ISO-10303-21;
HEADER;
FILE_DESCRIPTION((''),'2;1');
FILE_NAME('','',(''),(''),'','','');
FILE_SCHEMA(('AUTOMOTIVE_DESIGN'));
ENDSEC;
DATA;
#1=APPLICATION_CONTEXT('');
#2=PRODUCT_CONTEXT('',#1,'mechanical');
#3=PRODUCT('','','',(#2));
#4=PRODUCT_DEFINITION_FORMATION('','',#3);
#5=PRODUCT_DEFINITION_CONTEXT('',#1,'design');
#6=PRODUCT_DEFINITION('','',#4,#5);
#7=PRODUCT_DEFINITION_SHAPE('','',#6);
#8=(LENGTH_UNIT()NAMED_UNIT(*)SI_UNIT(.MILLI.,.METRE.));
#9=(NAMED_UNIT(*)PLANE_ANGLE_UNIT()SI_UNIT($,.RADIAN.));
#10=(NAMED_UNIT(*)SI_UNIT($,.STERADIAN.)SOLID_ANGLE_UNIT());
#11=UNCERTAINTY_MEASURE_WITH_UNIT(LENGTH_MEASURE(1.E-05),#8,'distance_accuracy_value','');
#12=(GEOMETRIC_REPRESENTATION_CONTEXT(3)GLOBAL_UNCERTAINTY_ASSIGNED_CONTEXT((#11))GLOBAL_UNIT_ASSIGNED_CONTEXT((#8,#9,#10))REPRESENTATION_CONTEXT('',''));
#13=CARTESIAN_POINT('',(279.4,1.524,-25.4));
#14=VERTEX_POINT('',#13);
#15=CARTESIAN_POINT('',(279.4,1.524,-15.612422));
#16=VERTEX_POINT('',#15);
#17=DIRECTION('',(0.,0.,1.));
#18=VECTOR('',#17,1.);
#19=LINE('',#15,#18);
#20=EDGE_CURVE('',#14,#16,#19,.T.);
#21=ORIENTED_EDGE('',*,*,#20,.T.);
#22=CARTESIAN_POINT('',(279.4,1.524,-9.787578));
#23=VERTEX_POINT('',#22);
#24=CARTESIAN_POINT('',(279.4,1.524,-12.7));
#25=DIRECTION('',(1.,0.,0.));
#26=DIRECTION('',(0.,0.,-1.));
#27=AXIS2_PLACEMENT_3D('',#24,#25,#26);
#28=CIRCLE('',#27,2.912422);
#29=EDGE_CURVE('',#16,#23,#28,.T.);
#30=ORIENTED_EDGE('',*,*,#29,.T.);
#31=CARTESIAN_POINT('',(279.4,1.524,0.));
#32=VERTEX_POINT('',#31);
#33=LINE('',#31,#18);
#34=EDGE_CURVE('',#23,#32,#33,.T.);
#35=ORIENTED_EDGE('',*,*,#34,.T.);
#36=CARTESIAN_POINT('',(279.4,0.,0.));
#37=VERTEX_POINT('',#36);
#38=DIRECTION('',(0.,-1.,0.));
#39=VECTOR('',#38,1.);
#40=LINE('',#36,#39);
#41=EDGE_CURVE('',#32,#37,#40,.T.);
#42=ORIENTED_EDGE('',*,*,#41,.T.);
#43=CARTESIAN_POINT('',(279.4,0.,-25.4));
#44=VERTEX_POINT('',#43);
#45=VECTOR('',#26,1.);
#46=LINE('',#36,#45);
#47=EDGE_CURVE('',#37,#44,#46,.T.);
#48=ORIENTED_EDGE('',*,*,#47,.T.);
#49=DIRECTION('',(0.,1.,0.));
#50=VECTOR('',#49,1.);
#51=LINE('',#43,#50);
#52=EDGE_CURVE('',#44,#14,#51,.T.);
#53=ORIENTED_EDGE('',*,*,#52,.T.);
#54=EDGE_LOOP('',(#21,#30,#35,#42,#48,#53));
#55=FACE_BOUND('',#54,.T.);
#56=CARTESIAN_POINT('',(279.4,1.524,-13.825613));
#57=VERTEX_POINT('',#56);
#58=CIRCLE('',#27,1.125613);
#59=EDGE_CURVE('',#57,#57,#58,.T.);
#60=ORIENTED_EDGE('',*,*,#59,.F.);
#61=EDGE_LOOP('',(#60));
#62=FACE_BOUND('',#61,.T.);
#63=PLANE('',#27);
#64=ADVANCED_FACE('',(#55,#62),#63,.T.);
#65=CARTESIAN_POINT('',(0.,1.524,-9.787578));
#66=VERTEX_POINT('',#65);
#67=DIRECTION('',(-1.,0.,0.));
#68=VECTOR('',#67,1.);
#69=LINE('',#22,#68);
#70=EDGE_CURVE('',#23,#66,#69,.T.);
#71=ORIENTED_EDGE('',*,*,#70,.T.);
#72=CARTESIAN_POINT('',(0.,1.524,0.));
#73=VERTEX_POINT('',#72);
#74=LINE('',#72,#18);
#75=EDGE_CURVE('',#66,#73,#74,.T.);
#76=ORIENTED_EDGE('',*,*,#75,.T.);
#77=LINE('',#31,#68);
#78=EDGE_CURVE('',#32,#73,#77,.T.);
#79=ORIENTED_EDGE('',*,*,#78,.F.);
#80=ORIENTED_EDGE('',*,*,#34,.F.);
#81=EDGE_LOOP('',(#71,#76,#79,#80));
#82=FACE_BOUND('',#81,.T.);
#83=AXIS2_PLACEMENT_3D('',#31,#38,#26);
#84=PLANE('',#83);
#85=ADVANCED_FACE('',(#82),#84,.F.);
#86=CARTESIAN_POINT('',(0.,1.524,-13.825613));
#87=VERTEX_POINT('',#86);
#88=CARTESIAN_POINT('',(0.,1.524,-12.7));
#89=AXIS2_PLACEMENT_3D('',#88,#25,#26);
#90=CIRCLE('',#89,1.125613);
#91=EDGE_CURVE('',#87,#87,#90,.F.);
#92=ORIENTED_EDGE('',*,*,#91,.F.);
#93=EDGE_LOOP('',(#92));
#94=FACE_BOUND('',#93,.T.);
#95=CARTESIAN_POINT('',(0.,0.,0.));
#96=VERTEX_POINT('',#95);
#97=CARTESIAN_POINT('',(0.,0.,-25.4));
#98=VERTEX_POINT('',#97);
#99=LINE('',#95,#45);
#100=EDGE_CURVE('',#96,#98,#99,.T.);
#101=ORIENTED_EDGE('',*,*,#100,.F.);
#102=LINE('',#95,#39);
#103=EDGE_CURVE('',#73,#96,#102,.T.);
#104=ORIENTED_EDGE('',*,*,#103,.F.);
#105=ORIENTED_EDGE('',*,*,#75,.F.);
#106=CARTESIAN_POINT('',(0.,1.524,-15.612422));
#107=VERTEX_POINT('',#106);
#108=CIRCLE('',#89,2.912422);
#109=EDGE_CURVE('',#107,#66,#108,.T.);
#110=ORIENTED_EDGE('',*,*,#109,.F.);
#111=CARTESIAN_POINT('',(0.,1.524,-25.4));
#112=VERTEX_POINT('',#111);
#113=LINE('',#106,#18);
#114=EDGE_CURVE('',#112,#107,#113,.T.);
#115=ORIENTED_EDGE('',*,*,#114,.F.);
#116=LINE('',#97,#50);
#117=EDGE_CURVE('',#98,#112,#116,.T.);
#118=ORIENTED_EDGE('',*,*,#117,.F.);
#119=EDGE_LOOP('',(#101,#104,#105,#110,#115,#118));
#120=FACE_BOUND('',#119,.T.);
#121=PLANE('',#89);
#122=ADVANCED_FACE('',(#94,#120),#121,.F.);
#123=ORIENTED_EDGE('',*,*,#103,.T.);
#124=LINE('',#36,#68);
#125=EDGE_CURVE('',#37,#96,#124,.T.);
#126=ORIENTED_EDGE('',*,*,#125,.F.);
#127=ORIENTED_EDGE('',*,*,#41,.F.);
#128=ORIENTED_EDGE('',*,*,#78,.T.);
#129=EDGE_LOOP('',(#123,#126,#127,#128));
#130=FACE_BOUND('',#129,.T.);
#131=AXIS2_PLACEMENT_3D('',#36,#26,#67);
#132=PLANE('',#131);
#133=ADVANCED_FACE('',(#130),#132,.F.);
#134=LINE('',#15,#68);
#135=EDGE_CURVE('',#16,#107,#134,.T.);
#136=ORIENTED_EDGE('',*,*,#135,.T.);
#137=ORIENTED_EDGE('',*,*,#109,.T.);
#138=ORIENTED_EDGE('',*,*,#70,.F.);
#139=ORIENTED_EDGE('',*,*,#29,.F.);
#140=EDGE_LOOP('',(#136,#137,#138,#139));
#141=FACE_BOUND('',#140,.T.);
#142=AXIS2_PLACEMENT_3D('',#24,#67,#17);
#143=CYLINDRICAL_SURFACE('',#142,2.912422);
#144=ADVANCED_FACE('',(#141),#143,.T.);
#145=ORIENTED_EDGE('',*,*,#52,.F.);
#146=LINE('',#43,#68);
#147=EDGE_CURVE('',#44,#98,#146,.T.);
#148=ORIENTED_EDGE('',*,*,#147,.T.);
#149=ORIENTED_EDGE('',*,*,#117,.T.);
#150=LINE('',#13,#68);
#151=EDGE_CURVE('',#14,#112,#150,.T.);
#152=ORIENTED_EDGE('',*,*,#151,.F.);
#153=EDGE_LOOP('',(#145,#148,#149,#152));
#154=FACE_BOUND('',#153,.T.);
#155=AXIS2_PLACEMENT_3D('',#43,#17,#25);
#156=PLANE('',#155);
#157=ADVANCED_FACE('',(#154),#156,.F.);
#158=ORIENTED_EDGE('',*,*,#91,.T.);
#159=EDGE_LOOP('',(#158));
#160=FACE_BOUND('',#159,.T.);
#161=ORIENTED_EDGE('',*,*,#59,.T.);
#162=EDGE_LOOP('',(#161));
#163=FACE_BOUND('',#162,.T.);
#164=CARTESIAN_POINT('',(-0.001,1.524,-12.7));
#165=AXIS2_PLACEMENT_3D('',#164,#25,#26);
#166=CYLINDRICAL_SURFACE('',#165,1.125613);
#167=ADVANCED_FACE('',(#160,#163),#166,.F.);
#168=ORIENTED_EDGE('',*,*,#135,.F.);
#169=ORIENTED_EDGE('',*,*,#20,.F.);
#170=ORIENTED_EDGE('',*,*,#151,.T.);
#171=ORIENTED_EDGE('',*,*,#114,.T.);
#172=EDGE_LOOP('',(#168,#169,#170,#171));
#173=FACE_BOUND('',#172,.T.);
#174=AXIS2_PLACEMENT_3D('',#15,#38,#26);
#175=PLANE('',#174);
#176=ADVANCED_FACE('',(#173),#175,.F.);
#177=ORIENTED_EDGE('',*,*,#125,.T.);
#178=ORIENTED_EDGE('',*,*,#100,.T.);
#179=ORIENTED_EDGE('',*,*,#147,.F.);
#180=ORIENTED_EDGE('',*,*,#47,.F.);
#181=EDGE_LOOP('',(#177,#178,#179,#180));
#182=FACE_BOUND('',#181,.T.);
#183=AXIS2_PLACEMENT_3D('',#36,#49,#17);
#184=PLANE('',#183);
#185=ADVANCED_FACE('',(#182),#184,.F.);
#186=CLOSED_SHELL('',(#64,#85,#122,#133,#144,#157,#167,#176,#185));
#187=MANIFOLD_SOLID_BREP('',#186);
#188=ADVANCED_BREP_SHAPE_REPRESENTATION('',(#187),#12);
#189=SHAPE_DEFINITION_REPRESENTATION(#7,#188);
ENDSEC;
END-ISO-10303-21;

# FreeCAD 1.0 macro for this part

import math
import FreeCAD as App
import Part
import Sketcher
from FreeCAD import Vector
Q = App.Units.Quantity

doc = App.newDocument("Part")
params = doc.addObject("Spreadsheet::Sheet", "Params")
for row, (alias, value) in enumerate([
    ("sketch1_height", "1 in"),
    ("sketch1_width", "0.06 in"),
    ("pad1_length", "11 in"),
], start=1):
    params.set(f"A{row}", alias)
    params.set(f"B{row}", "=" + value)
    params.setAlias(f"B{row}", alias)

body = doc.addObject("PartDesign::Body", "Body")

# Sketch on YZ plane
sketch1 = body.newObject("Sketcher::SketchObject", "Sketch")
sketch1.AttachmentSupport = (doc.getObject("YZ_Plane"), [""])
sketch1.MapMode = "FlatFace"
sketch1.addGeometry(Part.LineSegment(Vector(1.5, -25.4, 0), Vector(1.5, -15.6, 0)), False)
sketch1.addGeometry(Part.ArcOfCircle(Part.Circle(Vector(1.5, -12.7, 0), Vector(0, 0, 1), 2.9), math.radians(-90), math.radians(90)), False)
sketch1.addGeometry(Part.LineSegment(Vector(1.5, -9.8, 0), Vector(1.5, 0, 0)), False)
sketch1.addGeometry(Part.LineSegment(Vector(1.5, 0, 0), Vector(0, 0, 0)), False)
sketch1.addGeometry(Part.LineSegment(Vector(0, 0, 0), Vector(0, -25.4, 0)), False)
sketch1.addGeometry(Part.LineSegment(Vector(0, -25.4, 0), Vector(1.5, -25.4, 0)), False)
sketch1.addConstraint(Sketcher.Constraint("Coincident", 0, 2, 1, 1))
sketch1.addConstraint(Sketcher.Constraint("Coincident", 1, 2, 2, 1))
sketch1.addConstraint(Sketcher.Constraint("Coincident", 2, 2, 3, 1))
sketch1.addConstraint(Sketcher.Constraint("Coincident", 3, 2, 4, 1))
sketch1.addConstraint(Sketcher.Constraint("Coincident", 4, 2, 5, 1))
sketch1.addConstraint(Sketcher.Constraint("Coincident", 5, 2, 0, 1))
sketch1.addConstraint(Sketcher.Constraint("Vertical", 0))
sketch1.addConstraint(Sketcher.Constraint("Vertical", 2))
sketch1.addConstraint(Sketcher.Constraint("Horizontal", 3))
sketch1.addConstraint(Sketcher.Constraint("Vertical", 4))
sketch1.addConstraint(Sketcher.Constraint("Horizontal", 5))
sketch1.addConstraint(Sketcher.Constraint("Coincident", 3, 2, -1, 1))
sketch1.addConstraint(Sketcher.Constraint("Vertical", 1, 3, 0, 2))
sketch1.addConstraint(Sketcher.Constraint("Vertical", 0, 2, 1, 2))
sketch1.addConstraint(Sketcher.Constraint("Equal", 0, 2))
sketch1.addConstraint(Sketcher.Constraint("DistanceY", 4, 2, 4, 1, Q("1 in")))
sketch1.addConstraint(Sketcher.Constraint("DistanceX", 3, 2, 3, 1, Q("0.06 in")))
sketch1.addConstraint(Sketcher.Constraint("Radius", 1, Q("2.912422 mm")))
sketch1.setExpression("Constraints[15]", "Params.sketch1_height")
sketch1.setExpression("Constraints[16]", "Params.sketch1_width")
pad1 = body.newObject("PartDesign::Pad", "Pad")
pad1.Profile = sketch1
pad1.setExpression("Length", "Params.pad1_length")

# Sketch on YZ plane
sketch2 = body.newObject("Sketcher::SketchObject", "Sketch001")
sketch2.AttachmentSupport = (doc.getObject("YZ_Plane"), [""])
sketch2.MapMode = "FlatFace"
sketch2.AttachmentOffset = App.Placement(Vector(0, 0, 11 * 25.4), App.Rotation())
sketch2.addGeometry(Part.Circle(Vector(1.5, -12.7, 0), Vector(0, 0, 1), 1.1), False)
sketch2.addConstraint(Sketcher.Constraint("DistanceY", 0, 3, -1, 1, Q("0.5 in")))
sketch2.addConstraint(Sketcher.Constraint("DistanceX", -1, 1, 0, 3, Q("0.06 in")))
sketch2.addConstraint(Sketcher.Constraint("Diameter", 0, Q("2.251227 mm")))
pocket1 = body.newObject("PartDesign::Pocket", "Pocket")
pocket1.Profile = sketch2
pocket1.Type = "UpToFirst"

doc.recompute()
